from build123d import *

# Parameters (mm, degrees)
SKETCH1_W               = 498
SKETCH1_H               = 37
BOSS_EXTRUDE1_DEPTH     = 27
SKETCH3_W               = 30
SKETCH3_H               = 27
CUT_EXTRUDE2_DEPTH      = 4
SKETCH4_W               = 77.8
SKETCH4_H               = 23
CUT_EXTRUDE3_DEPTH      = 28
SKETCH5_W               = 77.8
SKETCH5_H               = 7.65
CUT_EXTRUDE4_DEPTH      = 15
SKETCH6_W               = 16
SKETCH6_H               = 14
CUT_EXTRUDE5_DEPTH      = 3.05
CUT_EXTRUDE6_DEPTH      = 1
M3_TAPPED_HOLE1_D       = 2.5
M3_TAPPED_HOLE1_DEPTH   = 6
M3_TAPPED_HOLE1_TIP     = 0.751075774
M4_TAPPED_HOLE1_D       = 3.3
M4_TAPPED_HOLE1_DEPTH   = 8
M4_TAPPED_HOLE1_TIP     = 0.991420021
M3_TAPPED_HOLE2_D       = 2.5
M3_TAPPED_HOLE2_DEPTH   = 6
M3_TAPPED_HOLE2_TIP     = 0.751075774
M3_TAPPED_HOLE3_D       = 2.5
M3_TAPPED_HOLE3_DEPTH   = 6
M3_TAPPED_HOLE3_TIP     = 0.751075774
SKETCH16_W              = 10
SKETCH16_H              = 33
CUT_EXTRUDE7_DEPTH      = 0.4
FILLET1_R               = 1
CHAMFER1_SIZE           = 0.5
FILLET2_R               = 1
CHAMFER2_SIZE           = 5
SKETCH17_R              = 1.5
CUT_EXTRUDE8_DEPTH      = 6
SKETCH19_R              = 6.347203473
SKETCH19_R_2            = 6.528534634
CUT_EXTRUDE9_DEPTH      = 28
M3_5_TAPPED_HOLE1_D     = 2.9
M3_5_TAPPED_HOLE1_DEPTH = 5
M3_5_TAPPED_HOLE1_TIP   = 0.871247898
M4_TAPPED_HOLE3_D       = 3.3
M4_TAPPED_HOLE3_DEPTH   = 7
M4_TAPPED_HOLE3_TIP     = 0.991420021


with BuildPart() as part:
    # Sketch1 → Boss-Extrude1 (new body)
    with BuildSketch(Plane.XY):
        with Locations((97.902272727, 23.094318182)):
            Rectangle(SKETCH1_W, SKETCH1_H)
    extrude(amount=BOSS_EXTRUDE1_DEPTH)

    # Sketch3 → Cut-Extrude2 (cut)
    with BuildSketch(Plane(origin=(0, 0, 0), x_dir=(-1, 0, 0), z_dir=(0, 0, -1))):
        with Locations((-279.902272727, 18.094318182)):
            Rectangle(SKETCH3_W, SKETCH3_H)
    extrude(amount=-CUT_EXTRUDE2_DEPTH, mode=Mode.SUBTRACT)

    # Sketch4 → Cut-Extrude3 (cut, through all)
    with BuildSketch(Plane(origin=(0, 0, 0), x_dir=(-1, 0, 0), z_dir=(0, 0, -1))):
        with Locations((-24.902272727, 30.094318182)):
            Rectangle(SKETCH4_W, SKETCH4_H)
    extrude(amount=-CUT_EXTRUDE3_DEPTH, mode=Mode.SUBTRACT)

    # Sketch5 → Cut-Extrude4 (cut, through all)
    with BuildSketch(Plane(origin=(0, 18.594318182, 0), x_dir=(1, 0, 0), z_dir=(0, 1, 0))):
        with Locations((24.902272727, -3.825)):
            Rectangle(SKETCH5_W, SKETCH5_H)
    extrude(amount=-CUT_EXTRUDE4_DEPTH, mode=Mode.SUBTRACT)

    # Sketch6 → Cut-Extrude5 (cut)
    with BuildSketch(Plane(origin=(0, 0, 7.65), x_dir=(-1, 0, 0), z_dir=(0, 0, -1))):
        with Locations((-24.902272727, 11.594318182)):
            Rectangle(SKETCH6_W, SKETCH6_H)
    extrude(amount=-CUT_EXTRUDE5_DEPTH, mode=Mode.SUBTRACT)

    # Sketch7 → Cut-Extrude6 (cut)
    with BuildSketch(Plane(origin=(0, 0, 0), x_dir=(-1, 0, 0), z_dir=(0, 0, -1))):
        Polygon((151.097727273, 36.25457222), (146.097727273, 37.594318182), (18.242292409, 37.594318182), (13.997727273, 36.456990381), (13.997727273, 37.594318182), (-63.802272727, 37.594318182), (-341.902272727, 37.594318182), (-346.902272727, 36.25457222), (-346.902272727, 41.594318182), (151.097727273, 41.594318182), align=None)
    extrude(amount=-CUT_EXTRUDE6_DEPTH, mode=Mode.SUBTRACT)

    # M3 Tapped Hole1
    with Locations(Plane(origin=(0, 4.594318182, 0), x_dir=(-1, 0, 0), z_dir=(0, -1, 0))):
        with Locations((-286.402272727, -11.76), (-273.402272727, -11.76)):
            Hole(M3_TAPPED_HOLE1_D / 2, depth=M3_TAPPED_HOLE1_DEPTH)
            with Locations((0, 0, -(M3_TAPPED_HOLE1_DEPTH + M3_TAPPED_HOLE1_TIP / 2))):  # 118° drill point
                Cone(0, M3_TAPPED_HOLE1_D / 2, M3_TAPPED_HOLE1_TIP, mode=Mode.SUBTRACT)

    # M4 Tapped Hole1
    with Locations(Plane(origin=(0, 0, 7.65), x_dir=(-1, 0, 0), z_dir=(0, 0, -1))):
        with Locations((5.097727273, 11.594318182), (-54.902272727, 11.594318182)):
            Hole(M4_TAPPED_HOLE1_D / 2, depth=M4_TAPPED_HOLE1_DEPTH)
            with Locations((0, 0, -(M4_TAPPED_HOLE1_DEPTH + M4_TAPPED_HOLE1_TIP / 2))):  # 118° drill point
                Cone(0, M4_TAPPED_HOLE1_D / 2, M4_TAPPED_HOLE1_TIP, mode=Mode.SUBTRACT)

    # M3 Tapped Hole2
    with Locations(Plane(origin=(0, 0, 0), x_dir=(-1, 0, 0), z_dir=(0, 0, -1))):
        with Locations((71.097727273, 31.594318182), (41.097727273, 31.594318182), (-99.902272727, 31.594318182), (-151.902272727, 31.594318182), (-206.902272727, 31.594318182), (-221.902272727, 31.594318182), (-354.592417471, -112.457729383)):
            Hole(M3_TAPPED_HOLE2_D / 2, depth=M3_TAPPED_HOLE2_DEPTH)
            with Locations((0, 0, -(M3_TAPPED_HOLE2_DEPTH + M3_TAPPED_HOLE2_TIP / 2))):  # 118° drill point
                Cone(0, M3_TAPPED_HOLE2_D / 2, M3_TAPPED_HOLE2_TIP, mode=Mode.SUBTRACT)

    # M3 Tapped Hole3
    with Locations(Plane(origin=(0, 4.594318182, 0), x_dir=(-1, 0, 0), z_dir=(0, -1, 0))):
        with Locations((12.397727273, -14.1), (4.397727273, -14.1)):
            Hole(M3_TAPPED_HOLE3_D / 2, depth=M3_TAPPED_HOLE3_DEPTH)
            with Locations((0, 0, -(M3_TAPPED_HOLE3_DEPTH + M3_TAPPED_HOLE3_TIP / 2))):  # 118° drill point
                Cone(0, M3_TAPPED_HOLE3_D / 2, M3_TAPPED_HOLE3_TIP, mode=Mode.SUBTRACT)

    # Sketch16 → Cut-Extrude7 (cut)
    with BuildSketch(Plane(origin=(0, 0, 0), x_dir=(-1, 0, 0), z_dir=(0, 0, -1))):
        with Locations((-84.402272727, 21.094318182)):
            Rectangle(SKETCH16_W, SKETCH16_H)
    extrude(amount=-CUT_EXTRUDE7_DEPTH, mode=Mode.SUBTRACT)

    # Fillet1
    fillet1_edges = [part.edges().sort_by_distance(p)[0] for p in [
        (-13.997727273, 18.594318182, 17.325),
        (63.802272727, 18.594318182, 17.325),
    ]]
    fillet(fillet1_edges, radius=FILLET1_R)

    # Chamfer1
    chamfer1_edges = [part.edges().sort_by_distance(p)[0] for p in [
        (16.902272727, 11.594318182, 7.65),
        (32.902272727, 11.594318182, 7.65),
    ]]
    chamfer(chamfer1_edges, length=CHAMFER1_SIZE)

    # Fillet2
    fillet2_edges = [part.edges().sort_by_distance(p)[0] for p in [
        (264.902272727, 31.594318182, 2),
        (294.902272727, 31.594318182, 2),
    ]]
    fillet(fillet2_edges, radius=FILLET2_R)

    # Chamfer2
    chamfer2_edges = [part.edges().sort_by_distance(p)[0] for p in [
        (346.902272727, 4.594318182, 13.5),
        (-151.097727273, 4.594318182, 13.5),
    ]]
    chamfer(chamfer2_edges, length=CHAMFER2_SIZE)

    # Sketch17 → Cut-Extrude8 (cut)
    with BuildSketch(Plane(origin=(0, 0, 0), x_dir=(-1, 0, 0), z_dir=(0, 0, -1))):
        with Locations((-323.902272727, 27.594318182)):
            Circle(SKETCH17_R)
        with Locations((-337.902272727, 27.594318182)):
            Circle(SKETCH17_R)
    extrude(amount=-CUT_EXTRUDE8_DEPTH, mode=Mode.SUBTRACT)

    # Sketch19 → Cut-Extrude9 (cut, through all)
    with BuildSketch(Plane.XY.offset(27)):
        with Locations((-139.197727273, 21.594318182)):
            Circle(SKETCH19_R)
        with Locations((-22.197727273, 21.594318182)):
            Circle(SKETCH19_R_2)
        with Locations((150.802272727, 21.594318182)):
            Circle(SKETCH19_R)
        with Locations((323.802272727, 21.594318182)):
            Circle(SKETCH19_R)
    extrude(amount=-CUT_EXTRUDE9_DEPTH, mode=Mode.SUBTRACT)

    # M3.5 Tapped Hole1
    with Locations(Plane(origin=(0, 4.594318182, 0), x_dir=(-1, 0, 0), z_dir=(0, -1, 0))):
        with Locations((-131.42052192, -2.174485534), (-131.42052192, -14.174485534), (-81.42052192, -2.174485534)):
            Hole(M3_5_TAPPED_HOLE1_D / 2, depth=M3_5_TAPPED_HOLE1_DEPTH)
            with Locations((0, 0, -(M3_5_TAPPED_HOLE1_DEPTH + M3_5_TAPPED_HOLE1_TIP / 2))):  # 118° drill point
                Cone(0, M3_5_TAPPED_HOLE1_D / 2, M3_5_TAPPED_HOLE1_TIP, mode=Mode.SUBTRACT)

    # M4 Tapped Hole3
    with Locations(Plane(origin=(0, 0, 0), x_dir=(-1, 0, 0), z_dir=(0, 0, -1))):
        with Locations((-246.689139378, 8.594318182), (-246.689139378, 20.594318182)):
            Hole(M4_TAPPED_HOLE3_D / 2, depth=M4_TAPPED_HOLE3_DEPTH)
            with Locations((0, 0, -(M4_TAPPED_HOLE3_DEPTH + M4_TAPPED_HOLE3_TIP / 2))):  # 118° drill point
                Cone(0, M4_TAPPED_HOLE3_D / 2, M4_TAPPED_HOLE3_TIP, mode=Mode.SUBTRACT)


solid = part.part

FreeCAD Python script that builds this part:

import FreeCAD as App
import Part
import Sketcher
from FreeCAD import Vector
Q = App.Units.Quantity


def edges_at(feature, points):
    """Names of the edges that pass closest to the given points."""
    edges = feature.Shape.Edges
    near = lambda p: min(range(len(edges)), key=lambda i: edges[i].distToShape(Part.Vertex(*p))[0])
    return sorted({f"Edge{near(p) + 1}" for p in points})


def add_polygon(sketch, points):
    """Adds a closed chain of lines whose ends are joined by coincident constraints."""
    first, n = sketch.GeometryCount, len(points)
    for a, b in zip(points, points[1:] + points[:1]):
        sketch.addGeometry(Part.LineSegment(App.Vector(*a, 0), App.Vector(*b, 0)), False)
    for i in range(n):
        sketch.addConstraint(Sketcher.Constraint("Coincident", first + i, 2, first + (i + 1) % n, 1))

doc = App.newDocument("Part")
body = doc.addObject("PartDesign::Body", "Body")

sketch1 = body.newObject("Sketcher::SketchObject", "Sketch")
sketch1.AttachmentSupport = (doc.getObject("XY_Plane"), [""])
sketch1.MapMode = "FlatFace"
add_polygon(sketch1, [(-151, 42), (-151, 5), (347, 5), (347, 42)])
sketch1.addConstraint([
    Sketcher.Constraint("Vertical", 0),
    Sketcher.Constraint("Horizontal", 1),
    Sketcher.Constraint("Vertical", 2),
    Sketcher.Constraint("Horizontal", 3),
    Sketcher.Constraint("DistanceX", 1, 1, 1, 2, Q("498 mm")),
    Sketcher.Constraint("DistanceY", 0, 2, 0, 1, Q("37 mm")),
    Sketcher.Constraint("DistanceY", -1, 1, 0, 2, Q("4.594318 mm")),
    Sketcher.Constraint("DistanceX", 0, 2, -1, 1, Q("151.097727 mm")),
])
pad1 = body.newObject("PartDesign::Pad", "Pad")
pad1.Profile = sketch1
pad1.Length = 27

sketch2 = body.newObject("Sketcher::SketchObject", "Sketch001")
sketch2.AttachmentSupport = (doc.getObject("XY_Plane"), [""])
sketch2.MapMode = "FlatFace"
add_polygon(sketch2, [(295, 32), (295, 5), (265, 5), (265, 32)])
sketch2.addConstraint([
    Sketcher.Constraint("Vertical", 0),
    Sketcher.Constraint("Horizontal", 1),
    Sketcher.Constraint("Vertical", 2),
    Sketcher.Constraint("Horizontal", 3),
    Sketcher.Constraint("DistanceX", 1, 2, 1, 1, Q("30 mm")),
    Sketcher.Constraint("DistanceY", 0, 2, 0, 1, Q("27 mm")),
    Sketcher.Constraint("DistanceY", -1, 1, 0, 2, Q("4.594318 mm")),
    Sketcher.Constraint("DistanceX", -1, 1, 0, 2, Q("294.902273 mm")),
])
pocket1 = body.newObject("PartDesign::Pocket", "Pocket")
pocket1.Profile = sketch2
pocket1.Length = 4
pocket1.Reversed = True

sketch3 = body.newObject("Sketcher::SketchObject", "Sketch002")
sketch3.AttachmentSupport = (doc.getObject("XY_Plane"), [""])
sketch3.MapMode = "FlatFace"
add_polygon(sketch3, [(64, 42), (64, 19), (-14, 19), (-14, 42)])
sketch3.addConstraint([
    Sketcher.Constraint("Vertical", 0),
    Sketcher.Constraint("Horizontal", 1),
    Sketcher.Constraint("Vertical", 2),
    Sketcher.Constraint("Horizontal", 3),
    Sketcher.Constraint("DistanceY", 0, 2, 0, 1, Q("23 mm")),
    Sketcher.Constraint("DistanceX", 1, 2, 1, 1, Q("77.8 mm")),
    Sketcher.Constraint("DistanceY", -1, 1, 0, 2, Q("18.594318 mm")),
    Sketcher.Constraint("DistanceX", -1, 1, 0, 2, Q("63.802273 mm")),
])
pocket2 = body.newObject("PartDesign::Pocket", "Pocket001")
pocket2.Profile = sketch3
pocket2.Type = "ThroughAll"
pocket2.Reversed = True

sketch4 = body.newObject("Sketcher::SketchObject", "Sketch003")
sketch4.AttachmentSupport = (doc.getObject("XZ_Plane"), [""])
sketch4.MapMode = "FlatFace"
sketch4.AttachmentOffset = App.Placement(Vector(0, 0, -18.594318), App.Rotation())
add_polygon(sketch4, [(-14, 0), (-14, 8), (64, 8), (64, 0)])
sketch4.addConstraint([
    Sketcher.Constraint("Vertical", 0),
    Sketcher.Constraint("Horizontal", 1),
    Sketcher.Constraint("Vertical", 2),
    Sketcher.Constraint("Horizontal", 3),
    Sketcher.Constraint("PointOnObject", 2, 2, -1),
    Sketcher.Constraint("DistanceX", 1, 1, 1, 2, Q("77.8 mm")),
    Sketcher.Constraint("DistanceY", 0, 1, 0, 2, Q("7.65 mm")),
    Sketcher.Constraint("DistanceX", 0, 2, -1, 1, Q("13.997727 mm")),
])
pocket3 = body.newObject("PartDesign::Pocket", "Pocket002")
pocket3.Profile = sketch4
pocket3.Type = "ThroughAll"
pocket3.Reversed = True

sketch5 = body.newObject("Sketcher::SketchObject", "Sketch004")
sketch5.AttachmentSupport = (doc.getObject("XY_Plane"), [""])
sketch5.MapMode = "FlatFace"
sketch5.AttachmentOffset = App.Placement(Vector(0, 0, 7.65), App.Rotation())
add_polygon(sketch5, [(33, 19), (33, 5), (17, 5), (17, 19)])
sketch5.addConstraint([
    Sketcher.Constraint("Vertical", 0),
    Sketcher.Constraint("Horizontal", 1),
    Sketcher.Constraint("Vertical", 2),
    Sketcher.Constraint("Horizontal", 3),
    Sketcher.Constraint("DistanceX", 1, 2, 1, 1, Q("16 mm")),
    Sketcher.Constraint("DistanceY", 0, 2, 0, 1, Q("14 mm")),
    Sketcher.Constraint("DistanceY", -1, 1, 0, 2, Q("4.594318 mm")),
    Sketcher.Constraint("DistanceX", -1, 1, 0, 2, Q("32.902273 mm")),
])
pocket4 = body.newObject("PartDesign::Pocket", "Pocket003")
pocket4.Profile = sketch5
pocket4.Length = 3.05
pocket4.Reversed = True

sketch6 = body.newObject("Sketcher::SketchObject", "Sketch005")
sketch6.AttachmentSupport = (doc.getObject("XY_Plane"), [""])
sketch6.MapMode = "FlatFace"
add_polygon(sketch6, [(-146.1, 37.6), (-151.1, 36.3), (-151.1, 41.6), (346.9, 41.6), (346.9, 36.3), (341.9, 37.6), (-14, 37.6), (-14, 36.5), (-18.2, 37.6)])
sketch6.addConstraint([
    Sketcher.Constraint("Vertical", 1),
    Sketcher.Constraint("Horizontal", 2),
    Sketcher.Constraint("Vertical", 3),
    Sketcher.Constraint("Horizontal", 5),
    Sketcher.Constraint("Vertical", 6),
    Sketcher.Constraint("Horizontal", 8),
    Sketcher.Constraint("Parallel", 4, 7),
    Sketcher.Constraint("Horizontal", 0, 2, 3, 2),
    Sketcher.Constraint("Horizontal", 5, 2, 7, 2),
    Sketcher.Constraint("Equal", 0, 4),
    Sketcher.Constraint("DistanceX", 2, 1, 2, 2, Q("498 mm")),
    Sketcher.Constraint("Angle", 0, Q("-165 deg")),
    Sketcher.Constraint("DistanceX", 5, 2, 5, 1, Q("355.9 mm")),
    Sketcher.Constraint("DistanceX", 4, 2, 3, 2, Q("5 mm")),
    Sketcher.Constraint("DistanceY", 4, 2, 2, 2, Q("4 mm")),
    Sketcher.Constraint("DistanceX", 8, 2, 8, 1, Q("127.855435 mm")),
    Sketcher.Constraint("DistanceY", -1, 1, 1, 2, Q("41.594318 mm")),
    Sketcher.Constraint("DistanceX", 0, 2, -1, 1, Q("151.097727 mm")),
])
pocket5 = body.newObject("PartDesign::Pocket", "Pocket004")
pocket5.Profile = sketch6
pocket5.Length = 1
pocket5.Reversed = True

sketch7 = body.newObject("Sketcher::SketchObject", "Sketch006")
sketch7.AttachmentSupport = (doc.getObject("XZ_Plane"), [""])
sketch7.MapMode = "FlatFace"
sketch7.AttachmentOffset = App.Placement(Vector(0, 0, -4.594318), App.Rotation())
sketch7.addGeometry([
    Part.Circle(Vector(286.4, 11.8, 0), Vector(0, 0, 1), 1.2),
    Part.Circle(Vector(273.4, 11.8, 0), Vector(0, 0, 1), 1.2),
], False)
sketch7.addConstraint([
    Sketcher.Constraint("Equal", 0, 1),
    Sketcher.Constraint("Horizontal", 0, 3, 1, 3),
    Sketcher.Constraint("Diameter", 0, Q("2.5 mm")),
    Sketcher.Constraint("DistanceX", 1, 3, 0, 3, Q("13 mm")),
    Sketcher.Constraint("DistanceY", -1, 1, 0, 3, Q("11.76 mm")),
    Sketcher.Constraint("DistanceX", -1, 1, 0, 3, Q("286.402273 mm")),
])
doc.recompute()
hole = body.newObject("PartDesign::Hole", "Hole")
hole.Profile = sketch7
hole.ThreadType = "None"
hole.Diameter = 2.5
hole.DepthType = "Dimension"
hole.Depth = 6
hole.DrillPoint = "Angled"
hole.DrillPointAngle = 118

sketch8 = body.newObject("Sketcher::SketchObject", "Sketch007")
sketch8.AttachmentSupport = (doc.getObject("XY_Plane"), [""])
sketch8.MapMode = "FlatFace"
sketch8.AttachmentOffset = App.Placement(Vector(0, 0, 7.65), App.Rotation())
sketch8.addGeometry([
    Part.Circle(Vector(-5.1, 11.6, 0), Vector(0, 0, 1), 1.6),
    Part.Circle(Vector(54.9, 11.6, 0), Vector(0, 0, 1), 1.6),
], False)
sketch8.addConstraint([
    Sketcher.Constraint("Equal", 0, 1),
    Sketcher.Constraint("Horizontal", 0, 3, 1, 3),
    Sketcher.Constraint("Diameter", 0, Q("3.3 mm")),
    Sketcher.Constraint("DistanceX", 0, 3, 1, 3, Q("60 mm")),
    Sketcher.Constraint("DistanceY", -1, 1, 0, 3, Q("11.594318 mm")),
    Sketcher.Constraint("DistanceX", 0, 3, -1, 1, Q("5.097727 mm")),
])
doc.recompute()
hole2 = body.newObject("PartDesign::Hole", "Hole001")
hole2.Profile = sketch8
hole2.ThreadType = "None"
hole2.Diameter = 3.3
hole2.DepthType = "Dimension"
hole2.Depth = 8
hole2.DrillPoint = "Angled"
hole2.DrillPointAngle = 118
hole2.Reversed = True

sketch9 = body.newObject("Sketcher::SketchObject", "Sketch008")
sketch9.AttachmentSupport = (doc.getObject("XY_Plane"), [""])
sketch9.MapMode = "FlatFace"
sketch9.addGeometry([
    Part.Circle(Vector(-71.1, 31.6, 0), Vector(0, 0, 1), 1.2),
    Part.Circle(Vector(-41.1, 31.6, 0), Vector(0, 0, 1), 1.2),
    Part.Circle(Vector(99.9, 31.6, 0), Vector(0, 0, 1), 1.2),
    Part.Circle(Vector(151.9, 31.6, 0), Vector(0, 0, 1), 1.2),
    Part.Circle(Vector(206.9, 31.6, 0), Vector(0, 0, 1), 1.2),
    Part.Circle(Vector(221.9, 31.6, 0), Vector(0, 0, 1), 1.2),
    Part.Circle(Vector(354.6, -112.5, 0), Vector(0, 0, 1), 1.2),
], False)
sketch9.addConstraint([
    Sketcher.Constraint("Equal", 0, 1),
    Sketcher.Constraint("Equal", 1, 2),
    Sketcher.Constraint("Equal", 2, 3),
    Sketcher.Constraint("Equal", 3, 4),
    Sketcher.Constraint("Equal", 4, 5),
    Sketcher.Constraint("Equal", 5, 6),
    Sketcher.Constraint("Horizontal", 0, 3, 1, 3),
    Sketcher.Constraint("Horizontal", 1, 3, 2, 3),
    Sketcher.Constraint("Horizontal", 2, 3, 3, 3),
    Sketcher.Constraint("Horizontal", 3, 3, 4, 3),
    Sketcher.Constraint("Horizontal", 4, 3, 5, 3),
    Sketcher.Constraint("Diameter", 0, Q("2.5 mm")),
    Sketcher.Constraint("DistanceX", 0, 3, 1, 3, Q("30 mm")),
    Sketcher.Constraint("DistanceX", 1, 3, 2, 3, Q("141 mm")),
    Sketcher.Constraint("DistanceX", 2, 3, 3, 3, Q("52 mm")),
    Sketcher.Constraint("DistanceX", 3, 3, 4, 3, Q("55 mm")),
    Sketcher.Constraint("DistanceX", 4, 3, 5, 3, Q("15 mm")),
    Sketcher.Constraint("DistanceY", -1, 1, 0, 3, Q("31.594318 mm")),
    Sketcher.Constraint("DistanceY", 6, 3, -1, 1, Q("112.457729 mm")),
    Sketcher.Constraint("DistanceX", 0, 3, -1, 1, Q("71.097727 mm")),
    Sketcher.Constraint("DistanceX", -1, 1, 6, 3, Q("354.592417 mm")),
])
doc.recompute()
hole3 = body.newObject("PartDesign::Hole", "Hole002")
hole3.Profile = sketch9
hole3.ThreadType = "None"
hole3.Diameter = 2.5
hole3.DepthType = "Dimension"
hole3.Depth = 6
hole3.DrillPoint = "Angled"
hole3.DrillPointAngle = 118
hole3.Reversed = True

sketch10 = body.newObject("Sketcher::SketchObject", "Sketch009")
sketch10.AttachmentSupport = (doc.getObject("XZ_Plane"), [""])
sketch10.MapMode = "FlatFace"
sketch10.AttachmentOffset = App.Placement(Vector(0, 0, -4.594318), App.Rotation())
sketch10.addGeometry([
    Part.Circle(Vector(-12.4, 14.1, 0), Vector(0, 0, 1), 1.2),
    Part.Circle(Vector(-4.4, 14.1, 0), Vector(0, 0, 1), 1.2),
], False)
sketch10.addConstraint([
    Sketcher.Constraint("Equal", 0, 1),
    Sketcher.Constraint("Horizontal", 0, 3, 1, 3),
    Sketcher.Constraint("Diameter", 0, Q("2.5 mm")),
    Sketcher.Constraint("DistanceX", 0, 3, 1, 3, Q("8 mm")),
    Sketcher.Constraint("DistanceY", -1, 1, 0, 3, Q("14.1 mm")),
    Sketcher.Constraint("DistanceX", 0, 3, -1, 1, Q("12.397727 mm")),
])
doc.recompute()
hole4 = body.newObject("PartDesign::Hole", "Hole003")
hole4.Profile = sketch10
hole4.ThreadType = "None"
hole4.Diameter = 2.5
hole4.DepthType = "Dimension"
hole4.Depth = 6
hole4.DrillPoint = "Angled"
hole4.DrillPointAngle = 118

sketch11 = body.newObject("Sketcher::SketchObject", "Sketch010")
sketch11.AttachmentSupport = (doc.getObject("XY_Plane"), [""])
sketch11.MapMode = "FlatFace"
add_polygon(sketch11, [(89, 38), (89, 5), (79, 5), (79, 38)])
sketch11.addConstraint([
    Sketcher.Constraint("Vertical", 0),
    Sketcher.Constraint("Horizontal", 1),
    Sketcher.Constraint("Vertical", 2),
    Sketcher.Constraint("Horizontal", 3),
    Sketcher.Constraint("DistanceX", 1, 2, 1, 1, Q("10 mm")),
    Sketcher.Constraint("DistanceY", 0, 2, 0, 1, Q("33 mm")),
    Sketcher.Constraint("DistanceY", -1, 1, 0, 2, Q("4.594318 mm")),
    Sketcher.Constraint("DistanceX", -1, 1, 0, 2, Q("89.402273 mm")),
])
pocket6 = body.newObject("PartDesign::Pocket", "Pocket005")
pocket6.Profile = sketch11
pocket6.Length = 0.4
pocket6.Reversed = True
doc.recompute()

fillet = body.newObject("PartDesign::Fillet", "Fillet")
fillet.Base = (pocket6, edges_at(pocket6, [(-13.998, 18.594, 17.325), (63.802, 18.594, 17.325)]))
fillet.Radius = 1
doc.recompute()

chamfer = body.newObject("PartDesign::Chamfer", "Chamfer")
chamfer.Base = (fillet, edges_at(fillet, [(16.902, 11.594, 7.65), (32.902, 11.594, 7.65)]))
chamfer.Size = 0.5
doc.recompute()

fillet2 = body.newObject("PartDesign::Fillet", "Fillet001")
fillet2.Base = (chamfer, edges_at(chamfer, [(264.902, 31.594, 2), (294.902, 31.594, 2)]))
fillet2.Radius = 1
doc.recompute()

chamfer2 = body.newObject("PartDesign::Chamfer", "Chamfer001")
chamfer2.Base = (fillet2, edges_at(fillet2, [(346.902, 4.594, 13.5), (-151.098, 4.594, 13.5)]))
chamfer2.Size = 5

sketch12 = body.newObject("Sketcher::SketchObject", "Sketch011")
sketch12.AttachmentSupport = (doc.getObject("XY_Plane"), [""])
sketch12.MapMode = "FlatFace"
sketch12.addGeometry([
    Part.Circle(Vector(323.9, 27.6, 0), Vector(0, 0, 1), 1.5),
    Part.Circle(Vector(337.9, 27.6, 0), Vector(0, 0, 1), 1.5),
], False)
sketch12.addConstraint([
    Sketcher.Constraint("Equal", 0, 1),
    Sketcher.Constraint("Horizontal", 0, 3, 1, 3),
    Sketcher.Constraint("Diameter", 0, Q("3 mm")),
    Sketcher.Constraint("DistanceX", 0, 3, 1, 3, Q("14 mm")),
    Sketcher.Constraint("DistanceY", -1, 1, 0, 3, Q("27.594318 mm")),
    Sketcher.Constraint("DistanceX", -1, 1, 0, 3, Q("323.902273 mm")),
])
pocket7 = body.newObject("PartDesign::Pocket", "Pocket006")
pocket7.Profile = sketch12
pocket7.Length = 6
pocket7.Reversed = True

sketch13 = body.newObject("Sketcher::SketchObject", "Sketch012")
sketch13.AttachmentSupport = (doc.getObject("XY_Plane"), [""])
sketch13.MapMode = "FlatFace"
sketch13.AttachmentOffset = App.Placement(Vector(0, 0, 27), App.Rotation())
sketch13.addGeometry([
    Part.Circle(Vector(-139, 22, 0), Vector(0, 0, 1), 6),
    Part.Circle(Vector(-22, 22, 0), Vector(0, 0, 1), 7),
    Part.Circle(Vector(151, 22, 0), Vector(0, 0, 1), 6),
    Part.Circle(Vector(324, 22, 0), Vector(0, 0, 1), 6),
], False)
sketch13.addConstraint([
    Sketcher.Constraint("Equal", 0, 2),
    Sketcher.Constraint("Equal", 2, 3),
    Sketcher.Constraint("Horizontal", 0, 3, 1, 3),
    Sketcher.Constraint("Horizontal", 1, 3, 2, 3),
    Sketcher.Constraint("Horizontal", 2, 3, 3, 3),
    Sketcher.Constraint("DistanceX", 0, 3, 1, 3, Q("117 mm")),
    Sketcher.Constraint("DistanceX", 1, 3, 2, 3, Q("173 mm")),
    Sketcher.Constraint("DistanceX", 2, 3, 3, 3, Q("173 mm")),
    Sketcher.Constraint("Diameter", 1, Q("13.057069 mm")),
    Sketcher.Constraint("Diameter", 0, Q("12.694407 mm")),
    Sketcher.Constraint("DistanceY", -1, 1, 0, 3, Q("21.594318 mm")),
    Sketcher.Constraint("DistanceX", 0, 3, -1, 1, Q("139.197727 mm")),
])
pocket8 = body.newObject("PartDesign::Pocket", "Pocket007")
pocket8.Profile = sketch13
pocket8.Type = "ThroughAll"

sketch14 = body.newObject("Sketcher::SketchObject", "Sketch013")
sketch14.AttachmentSupport = (doc.getObject("XZ_Plane"), [""])
sketch14.MapMode = "FlatFace"
sketch14.AttachmentOffset = App.Placement(Vector(0, 0, -4.594318), App.Rotation())
sketch14.addGeometry([
    Part.Circle(Vector(131.4, 2.2, 0), Vector(0, 0, 1), 1.4),
    Part.Circle(Vector(131.4, 14.2, 0), Vector(0, 0, 1), 1.4),
    Part.Circle(Vector(81.4, 2.2, 0), Vector(0, 0, 1), 1.4),
], False)
sketch14.addConstraint([
    Sketcher.Constraint("Equal", 0, 1),
    Sketcher.Constraint("Equal", 1, 2),
    Sketcher.Constraint("Horizontal", 0, 3, 2, 3),
    Sketcher.Constraint("Vertical", 0, 3, 1, 3),
    Sketcher.Constraint("Diameter", 0, Q("2.9 mm")),
    Sketcher.Constraint("DistanceY", 0, 3, 1, 3, Q("12 mm")),
    Sketcher.Constraint("DistanceX", 2, 3, 0, 3, Q("50 mm")),
    Sketcher.Constraint("DistanceX", -1, 1, 0, 3, Q("131.420522 mm")),
    Sketcher.Constraint("DistanceY", -1, 1, 0, 3, Q("2.174486 mm")),
])
doc.recompute()
hole5 = body.newObject("PartDesign::Hole", "Hole004")
hole5.Profile = sketch14
hole5.ThreadType = "None"
hole5.Diameter = 2.9
hole5.DepthType = "Dimension"
hole5.Depth = 5
hole5.DrillPoint = "Angled"
hole5.DrillPointAngle = 118

sketch15 = body.newObject("Sketcher::SketchObject", "Sketch014")
sketch15.AttachmentSupport = (doc.getObject("XY_Plane"), [""])
sketch15.MapMode = "FlatFace"
sketch15.addGeometry([
    Part.Circle(Vector(246.7, 8.6, 0), Vector(0, 0, 1), 1.6),
    Part.Circle(Vector(246.7, 20.6, 0), Vector(0, 0, 1), 1.6),
], False)
sketch15.addConstraint([
    Sketcher.Constraint("Equal", 0, 1),
    Sketcher.Constraint("Vertical", 0, 3, 1, 3),
    Sketcher.Constraint("Diameter", 0, Q("3.3 mm")),
    Sketcher.Constraint("DistanceY", 0, 3, 1, 3, Q("12 mm")),
    Sketcher.Constraint("DistanceX", -1, 1, 0, 3, Q("246.689139 mm")),
    Sketcher.Constraint("DistanceY", -1, 1, 0, 3, Q("8.594318 mm")),
])
doc.recompute()
hole6 = body.newObject("PartDesign::Hole", "Hole005")
hole6.Profile = sketch15
hole6.ThreadType = "None"
hole6.Diameter = 3.3
hole6.DepthType = "Dimension"
hole6.Depth = 7
hole6.DrillPoint = "Angled"
hole6.DrillPointAngle = 118
hole6.Reversed = True

doc.recompute()
